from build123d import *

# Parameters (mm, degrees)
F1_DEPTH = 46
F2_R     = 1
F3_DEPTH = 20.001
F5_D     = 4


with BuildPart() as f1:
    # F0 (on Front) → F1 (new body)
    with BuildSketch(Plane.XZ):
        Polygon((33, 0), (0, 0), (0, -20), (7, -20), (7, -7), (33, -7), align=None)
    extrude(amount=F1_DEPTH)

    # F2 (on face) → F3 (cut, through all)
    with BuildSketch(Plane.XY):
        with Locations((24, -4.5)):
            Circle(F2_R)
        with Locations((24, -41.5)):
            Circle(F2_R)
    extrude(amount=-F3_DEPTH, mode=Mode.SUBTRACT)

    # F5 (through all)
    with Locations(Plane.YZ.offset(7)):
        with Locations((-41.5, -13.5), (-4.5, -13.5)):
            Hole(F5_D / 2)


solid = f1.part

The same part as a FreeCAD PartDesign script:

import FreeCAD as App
import Part
import Sketcher

doc = App.newDocument("Part")
body = doc.addObject("PartDesign::Body", "Body")

sketch1 = body.newObject("Sketcher::SketchObject", "Sketch")
sketch1.AttachmentSupport = (doc.getObject("XZ_Plane"), [""])
sketch1.MapMode = "FlatFace"
sketch1.addGeometry(Part.LineSegment(App.Vector(33, 0, 0), App.Vector(0, 0, 0)), False)
sketch1.addGeometry(Part.LineSegment(App.Vector(0, 0, 0), App.Vector(0, -20, 0)), False)
sketch1.addGeometry(Part.LineSegment(App.Vector(0, -20, 0), App.Vector(7, -20, 0)), False)
sketch1.addGeometry(Part.LineSegment(App.Vector(7, -20, 0), App.Vector(7, -7, 0)), False)
sketch1.addGeometry(Part.LineSegment(App.Vector(7, -7, 0), App.Vector(33, -7, 0)), False)
sketch1.addGeometry(Part.LineSegment(App.Vector(33, -7, 0), App.Vector(33, 0, 0)), False)
sketch1.addConstraint(Sketcher.Constraint("Coincident", 0, 2, 1, 1))
sketch1.addConstraint(Sketcher.Constraint("Coincident", 1, 2, 2, 1))
sketch1.addConstraint(Sketcher.Constraint("Coincident", 2, 2, 3, 1))
sketch1.addConstraint(Sketcher.Constraint("Coincident", 3, 2, 4, 1))
sketch1.addConstraint(Sketcher.Constraint("Coincident", 4, 2, 5, 1))
sketch1.addConstraint(Sketcher.Constraint("Coincident", 5, 2, 0, 1))
sketch1.addConstraint(Sketcher.Constraint("Horizontal", 0))
sketch1.addConstraint(Sketcher.Constraint("Vertical", 1))
sketch1.addConstraint(Sketcher.Constraint("Horizontal", 2))
sketch1.addConstraint(Sketcher.Constraint("Vertical", 3))
sketch1.addConstraint(Sketcher.Constraint("Horizontal", 4))
sketch1.addConstraint(Sketcher.Constraint("Vertical", 5))
sketch1.addConstraint(Sketcher.Constraint("Coincident", 0, 2, -1, 1))
sketch1.addConstraint(Sketcher.Constraint("Equal", 2, 5))
sketch1.addConstraint(Sketcher.Constraint("DistanceX", 0, 2, 0, 1, 33.0))
sketch1.addConstraint(Sketcher.Constraint("DistanceX", 2, 1, 2, 2, 7.0))
sketch1.addConstraint(Sketcher.Constraint("DistanceY", 1, 2, 1, 1, 20.0))
pad1 = body.newObject("PartDesign::Pad", "Pad")
pad1.Profile = sketch1
pad1.Length = 46

sketch2 = body.newObject("Sketcher::SketchObject", "Sketch001")
sketch2.AttachmentSupport = (doc.getObject("XY_Plane"), [""])
sketch2.MapMode = "FlatFace"
sketch2.addGeometry(Part.Circle(App.Vector(24, -4.5, 0), App.Vector(0, 0, 1), 1), False)
sketch2.addGeometry(Part.Circle(App.Vector(24, -41.5, 0), App.Vector(0, 0, 1), 1), False)
sketch2.addConstraint(Sketcher.Constraint("Equal", 0, 1))
sketch2.addConstraint(Sketcher.Constraint("Vertical", 0, 3, 1, 3))
sketch2.addConstraint(Sketcher.Constraint("Diameter", 0, 2.0))
sketch2.addConstraint(Sketcher.Constraint("DistanceX", -1, 1, 0, 3, 24.0))
sketch2.addConstraint(Sketcher.Constraint("DistanceY", 1, 3, 0, 3, 37.0))
sketch2.addConstraint(Sketcher.Constraint("DistanceY", 0, 3, -1, 1, 4.5))
pocket1 = body.newObject("PartDesign::Pocket", "Pocket")
pocket1.Profile = sketch2
pocket1.Type = "ThroughAll"

sketch3 = body.newObject("Sketcher::SketchObject", "Sketch002")
sketch3.AttachmentSupport = (doc.getObject("YZ_Plane"), [""])
sketch3.MapMode = "FlatFace"
sketch3.AttachmentOffset = App.Placement(App.Vector(0, 0, 7), App.Rotation())
sketch3.addGeometry(Part.Circle(App.Vector(-41.5, -13.5, 0), App.Vector(0, 0, 1), 2), False)
sketch3.addGeometry(Part.Circle(App.Vector(-4.5, -13.5, 0), App.Vector(0, 0, 1), 2), False)
sketch3.addConstraint(Sketcher.Constraint("Equal", 0, 1))
sketch3.addConstraint(Sketcher.Constraint("Horizontal", 0, 3, 1, 3))
sketch3.addConstraint(Sketcher.Constraint("Diameter", 0, 4.0))
sketch3.addConstraint(Sketcher.Constraint("DistanceX", 0, 3, 1, 3, 37.0))
sketch3.addConstraint(Sketcher.Constraint("DistanceX", 0, 3, -1, 1, 41.5))
sketch3.addConstraint(Sketcher.Constraint("DistanceY", 0, 3, -1, 1, 13.5))
doc.recompute()
hole = body.newObject("PartDesign::Hole", "Hole")
hole.Profile = sketch3
hole.ThreadType = "None"
hole.Diameter = 4
hole.DepthType = "ThroughAll"

doc.recompute()
